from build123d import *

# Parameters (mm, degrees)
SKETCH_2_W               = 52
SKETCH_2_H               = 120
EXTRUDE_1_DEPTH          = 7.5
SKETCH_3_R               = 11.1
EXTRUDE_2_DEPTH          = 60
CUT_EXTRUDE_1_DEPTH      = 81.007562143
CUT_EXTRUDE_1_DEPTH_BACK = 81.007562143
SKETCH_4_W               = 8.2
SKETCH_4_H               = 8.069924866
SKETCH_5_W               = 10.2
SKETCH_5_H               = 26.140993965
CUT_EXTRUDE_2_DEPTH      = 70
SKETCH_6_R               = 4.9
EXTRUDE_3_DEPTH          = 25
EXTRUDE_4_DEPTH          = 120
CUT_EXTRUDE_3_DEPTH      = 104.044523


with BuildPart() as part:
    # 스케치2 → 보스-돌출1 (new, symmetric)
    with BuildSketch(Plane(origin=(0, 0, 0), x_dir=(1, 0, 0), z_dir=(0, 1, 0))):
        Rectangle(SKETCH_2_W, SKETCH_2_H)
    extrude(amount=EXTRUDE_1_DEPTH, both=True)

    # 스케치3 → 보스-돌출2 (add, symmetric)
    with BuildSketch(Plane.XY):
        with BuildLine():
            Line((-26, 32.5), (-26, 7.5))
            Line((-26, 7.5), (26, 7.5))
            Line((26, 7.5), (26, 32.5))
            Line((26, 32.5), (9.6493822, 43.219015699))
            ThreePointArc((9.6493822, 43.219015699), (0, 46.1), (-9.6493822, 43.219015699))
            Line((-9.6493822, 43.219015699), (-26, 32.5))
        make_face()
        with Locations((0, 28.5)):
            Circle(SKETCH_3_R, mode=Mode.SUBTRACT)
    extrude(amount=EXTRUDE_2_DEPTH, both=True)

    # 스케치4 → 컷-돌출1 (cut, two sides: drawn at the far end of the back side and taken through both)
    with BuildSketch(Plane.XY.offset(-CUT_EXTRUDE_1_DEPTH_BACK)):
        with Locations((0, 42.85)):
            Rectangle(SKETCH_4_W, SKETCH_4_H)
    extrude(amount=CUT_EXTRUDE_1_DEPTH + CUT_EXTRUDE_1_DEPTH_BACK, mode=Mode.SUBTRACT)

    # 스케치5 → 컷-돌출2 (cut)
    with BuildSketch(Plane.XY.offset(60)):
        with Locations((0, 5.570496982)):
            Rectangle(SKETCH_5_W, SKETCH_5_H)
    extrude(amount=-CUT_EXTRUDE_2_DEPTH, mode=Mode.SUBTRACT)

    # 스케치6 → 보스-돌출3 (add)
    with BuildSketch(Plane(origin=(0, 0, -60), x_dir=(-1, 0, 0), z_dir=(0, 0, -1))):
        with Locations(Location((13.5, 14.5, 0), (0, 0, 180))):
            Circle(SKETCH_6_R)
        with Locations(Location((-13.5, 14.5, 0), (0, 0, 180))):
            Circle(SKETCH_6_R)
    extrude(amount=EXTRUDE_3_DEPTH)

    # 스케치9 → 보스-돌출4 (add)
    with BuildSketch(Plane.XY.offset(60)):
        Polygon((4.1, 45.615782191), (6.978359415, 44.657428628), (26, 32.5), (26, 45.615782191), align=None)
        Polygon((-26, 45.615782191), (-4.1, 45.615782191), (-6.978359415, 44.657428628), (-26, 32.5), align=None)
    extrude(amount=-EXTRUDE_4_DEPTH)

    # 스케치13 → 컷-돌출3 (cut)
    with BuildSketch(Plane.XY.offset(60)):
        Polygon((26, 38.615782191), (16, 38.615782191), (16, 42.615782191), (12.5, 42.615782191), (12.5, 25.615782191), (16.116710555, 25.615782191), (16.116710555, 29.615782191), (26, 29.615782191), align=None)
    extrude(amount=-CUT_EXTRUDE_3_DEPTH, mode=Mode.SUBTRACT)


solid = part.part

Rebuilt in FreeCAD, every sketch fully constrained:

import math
import FreeCAD as App
import Part
import Sketcher

V = App.Vector
Q = App.Units.Quantity

doc = App.newDocument("Part")
params = doc.addObject("Spreadsheet::Sheet", "Params")
for row, (alias, value) in enumerate([
    ("sketch1_width", "52 mm"),
    ("sketch1_height", "120 mm"),
    ("pad1_length", "15 mm"),
    ("sketch2_diameter", "22.2 mm"),
    ("sketch2_radius", "17.6 mm"),
    ("sketch2_width", "52 mm"),
    ("sketch2_height", "25 mm"),
    ("pad2_length", "120 mm"),
    ("sketch3_width", "8.2 mm"),
    ("sketch4_width", "10.2 mm"),
    ("pocket2_length", "70 mm"),
    ("sketch5_diameter", "9.8 mm"),
    ("pad3_length", "25 mm"),
    ("sketch6_width", "21.9 mm"),
    ("pad4_length", "120 mm"),
    ("sketch7_width", "10 mm"),
    ("sketch7_height", "4 mm"),
    ("sketch7_height2", "17 mm"),
    ("sketch7_width2", "3.5 mm"),
    ("pocket3_length", "104.044523 mm"),
], start=1):
    params.set(f"A{row}", alias)
    params.set(f"B{row}", "=" + value)
    params.setAlias(f"B{row}", alias)

body = doc.addObject("PartDesign::Body", "Body")

sketch1 = body.newObject("Sketcher::SketchObject", "Sketch")
sketch1.AttachmentSupport = (doc.getObject("XZ_Plane"), [""])
sketch1.MapMode = "FlatFace"
sketch1.addGeometry(Part.LineSegment(V(-26, -60, 0), V(-26, 60, 0)), False)
sketch1.addGeometry(Part.LineSegment(V(-26, 60, 0), V(26, 60, 0)), False)
sketch1.addGeometry(Part.LineSegment(V(26, 60, 0), V(26, -60, 0)), False)
sketch1.addGeometry(Part.LineSegment(V(26, -60, 0), V(-26, -60, 0)), False)
sketch1.addConstraint(Sketcher.Constraint("Coincident", 0, 2, 1, 1))
sketch1.addConstraint(Sketcher.Constraint("Coincident", 1, 2, 2, 1))
sketch1.addConstraint(Sketcher.Constraint("Coincident", 2, 2, 3, 1))
sketch1.addConstraint(Sketcher.Constraint("Coincident", 3, 2, 0, 1))
sketch1.addConstraint(Sketcher.Constraint("Vertical", 0))
sketch1.addConstraint(Sketcher.Constraint("Horizontal", 1))
sketch1.addConstraint(Sketcher.Constraint("Vertical", 2))
sketch1.addConstraint(Sketcher.Constraint("Horizontal", 3))
sketch1.addConstraint(Sketcher.Constraint("Symmetric", 0, 2, 2, 2, -1, 1))
sketch1.addConstraint(Sketcher.Constraint("DistanceX", 1, 1, 1, 2, Q("52 mm")))
sketch1.addConstraint(Sketcher.Constraint("DistanceY", 0, 1, 0, 2, Q("120 mm")))
sketch1.setExpression("Constraints[9]", "Params.sketch1_width")
sketch1.setExpression("Constraints[10]", "Params.sketch1_height")
pad1 = body.newObject("PartDesign::Pad", "Pad")
pad1.Profile = sketch1
pad1.setExpression("Length", "Params.pad1_length")
pad1.Midplane = True

sketch2 = body.newObject("Sketcher::SketchObject", "Sketch001")
sketch2.AttachmentSupport = (doc.getObject("XY_Plane"), [""])
sketch2.MapMode = "FlatFace"
sketch2.addGeometry(Part.LineSegment(V(-26, 32.5, 0), V(-26, 7.5, 0)), False)
sketch2.addGeometry(Part.LineSegment(V(-26, 7.5, 0), V(26, 7.5, 0)), False)
sketch2.addGeometry(Part.LineSegment(V(26, 7.5, 0), V(26, 32.5, 0)), False)
sketch2.addGeometry(Part.LineSegment(V(26, 32.5, 0), V(9.649382, 43.219016, 0)), False)
sketch2.addGeometry(Part.ArcOfCircle(Part.Circle(V(0, 28.5, 0), V(0, 0, 1), 17.6), math.radians(56.752252), math.radians(123.247748)), False)
sketch2.addGeometry(Part.LineSegment(V(-9.649382, 43.219016, 0), V(-26, 32.5, 0)), False)
sketch2.addGeometry(Part.Circle(V(0, 28.5, 0), V(0, 0, 1), 11.1), False)
sketch2.addConstraint(Sketcher.Constraint("Coincident", 0, 2, 1, 1))
sketch2.addConstraint(Sketcher.Constraint("Coincident", 1, 2, 2, 1))
sketch2.addConstraint(Sketcher.Constraint("Coincident", 2, 2, 3, 1))
sketch2.addConstraint(Sketcher.Constraint("Tangent", 3, 2, 4, 1))
sketch2.addConstraint(Sketcher.Constraint("Tangent", 4, 2, 5, 1))
sketch2.addConstraint(Sketcher.Constraint("Coincident", 5, 2, 0, 1))
sketch2.addConstraint(Sketcher.Constraint("Vertical", 0))
sketch2.addConstraint(Sketcher.Constraint("Horizontal", 1))
sketch2.addConstraint(Sketcher.Constraint("Vertical", 2))
sketch2.addConstraint(Sketcher.Constraint("Coincident", 6, 3, 4, 3))
sketch2.addConstraint(Sketcher.Constraint("Symmetric", 3, 2, 4, 2, -2))
sketch2.addConstraint(Sketcher.Constraint("Horizontal", 2, 2, 5, 2))
sketch2.addConstraint(Sketcher.Constraint("Diameter", 6, Q("22.2 mm")))
sketch2.addConstraint(Sketcher.Constraint("Radius", 4, Q("17.6 mm")))
sketch2.addConstraint(Sketcher.Constraint("DistanceX", 1, 1, 1, 2, Q("52 mm")))
sketch2.addConstraint(Sketcher.Constraint("DistanceY", 0, 2, 0, 1, Q("25 mm")))
sketch2.addConstraint(Sketcher.Constraint("DistanceY", 0, 2, 6, 3, Q("21 mm")))
sketch2.addConstraint(Sketcher.Constraint("DistanceY", -1, 1, 4, 3, Q("28.5 mm")))
sketch2.setExpression("Constraints[12]", "Params.sketch2_diameter")
sketch2.setExpression("Constraints[13]", "Params.sketch2_radius")
sketch2.setExpression("Constraints[14]", "Params.sketch2_width")
sketch2.setExpression("Constraints[15]", "Params.sketch2_height")
pad2 = body.newObject("PartDesign::Pad", "Pad001")
pad2.Profile = sketch2
pad2.setExpression("Length", "Params.pad2_length")
pad2.Midplane = True

sketch3 = body.newObject("Sketcher::SketchObject", "Sketch002")
sketch3.AttachmentSupport = (doc.getObject("XY_Plane"), [""])
sketch3.MapMode = "FlatFace"
sketch3.addGeometry(Part.LineSegment(V(-4.1, 46.884962, 0), V(-4.1, 38.815038, 0)), False)
sketch3.addGeometry(Part.LineSegment(V(-4.1, 38.815038, 0), V(4.1, 38.815038, 0)), False)
sketch3.addGeometry(Part.LineSegment(V(4.1, 38.815038, 0), V(4.1, 46.884962, 0)), False)
sketch3.addGeometry(Part.LineSegment(V(4.1, 46.884962, 0), V(-4.1, 46.884962, 0)), False)
sketch3.addConstraint(Sketcher.Constraint("Coincident", 0, 2, 1, 1))
sketch3.addConstraint(Sketcher.Constraint("Coincident", 1, 2, 2, 1))
sketch3.addConstraint(Sketcher.Constraint("Coincident", 2, 2, 3, 1))
sketch3.addConstraint(Sketcher.Constraint("Coincident", 3, 2, 0, 1))
sketch3.addConstraint(Sketcher.Constraint("Vertical", 0))
sketch3.addConstraint(Sketcher.Constraint("Horizontal", 1))
sketch3.addConstraint(Sketcher.Constraint("Vertical", 2))
sketch3.addConstraint(Sketcher.Constraint("Horizontal", 3))
sketch3.addConstraint(Sketcher.Constraint("DistanceX", 1, 1, 1, 2, Q("8.2 mm")))
sketch3.addConstraint(Sketcher.Constraint("DistanceX", 0, 2, -1, 1, Q("4.1 mm")))
sketch3.addConstraint(Sketcher.Constraint("DistanceY", 0, 2, 0, 1, Q("8.069925 mm")))
sketch3.addConstraint(Sketcher.Constraint("DistanceY", -1, 1, 0, 2, Q("38.815038 mm")))
sketch3.setExpression("Constraints[8]", "Params.sketch3_width")
pocket1 = body.newObject("PartDesign::Pocket", "Pocket")
pocket1.Profile = sketch3
pocket1.Type = "ThroughAll"
pocket1.Midplane = True

sketch4 = body.newObject("Sketcher::SketchObject", "Sketch003")
sketch4.AttachmentSupport = (doc.getObject("XY_Plane"), [""])
sketch4.MapMode = "FlatFace"
sketch4.AttachmentOffset = App.Placement(V(0, 0, 60), App.Rotation())
sketch4.addGeometry(Part.LineSegment(V(-5.1, 18.640994, 0), V(-5.1, -7.5, 0)), False)
sketch4.addGeometry(Part.LineSegment(V(-5.1, -7.5, 0), V(5.1, -7.5, 0)), False)
sketch4.addGeometry(Part.LineSegment(V(5.1, -7.5, 0), V(5.1, 18.640994, 0)), False)
sketch4.addGeometry(Part.LineSegment(V(5.1, 18.640994, 0), V(-5.1, 18.640994, 0)), False)
sketch4.addConstraint(Sketcher.Constraint("Coincident", 0, 2, 1, 1))
sketch4.addConstraint(Sketcher.Constraint("Coincident", 1, 2, 2, 1))
sketch4.addConstraint(Sketcher.Constraint("Coincident", 2, 2, 3, 1))
sketch4.addConstraint(Sketcher.Constraint("Coincident", 3, 2, 0, 1))
sketch4.addConstraint(Sketcher.Constraint("Vertical", 0))
sketch4.addConstraint(Sketcher.Constraint("Horizontal", 1))
sketch4.addConstraint(Sketcher.Constraint("Vertical", 2))
sketch4.addConstraint(Sketcher.Constraint("Horizontal", 3))
sketch4.addConstraint(Sketcher.Constraint("DistanceX", 1, 1, 1, 2, Q("10.2 mm")))
sketch4.addConstraint(Sketcher.Constraint("DistanceX", 0, 2, -1, 1, Q("5.1 mm")))
sketch4.addConstraint(Sketcher.Constraint("DistanceY", 0, 2, -1, 1, Q("7.5 mm")))
sketch4.addConstraint(Sketcher.Constraint("DistanceY", 0, 2, 0, 1, Q("26.140994 mm")))
sketch4.setExpression("Constraints[8]", "Params.sketch4_width")
pocket2 = body.newObject("PartDesign::Pocket", "Pocket001")
pocket2.Profile = sketch4
pocket2.setExpression("Length", "Params.pocket2_length")

sketch5 = body.newObject("Sketcher::SketchObject", "Sketch004")
sketch5.AttachmentSupport = (doc.getObject("XY_Plane"), [""])
sketch5.MapMode = "FlatFace"
sketch5.AttachmentOffset = App.Placement(V(0, 0, -60), App.Rotation())
sketch5.addGeometry(Part.Circle(V(-13.5, 14.5, 0), V(0, 0, 1), 4.9), False)
sketch5.addGeometry(Part.Circle(V(13.5, 14.5, 0), V(0, 0, 1), 4.9), False)
sketch5.addConstraint(Sketcher.Constraint("Equal", 0, 1))
sketch5.addConstraint(Sketcher.Constraint("Symmetric", 0, 3, 1, 3, -2))
sketch5.addConstraint(Sketcher.Constraint("Diameter", 0, Q("9.8 mm")))
sketch5.addConstraint(Sketcher.Constraint("DistanceX", 0, 3, 1, 3, Q("27 mm")))
sketch5.addConstraint(Sketcher.Constraint("DistanceY", -1, 1, 0, 3, Q("14.5 mm")))
sketch5.setExpression("Constraints[2]", "Params.sketch5_diameter")
pad3 = body.newObject("PartDesign::Pad", "Pad002")
pad3.Profile = sketch5
pad3.setExpression("Length", "Params.pad3_length")
pad3.Reversed = True

sketch6 = body.newObject("Sketcher::SketchObject", "Sketch005")
sketch6.AttachmentSupport = (doc.getObject("XY_Plane"), [""])
sketch6.MapMode = "FlatFace"
sketch6.AttachmentOffset = App.Placement(V(0, 0, 60), App.Rotation())
sketch6.addGeometry(Part.LineSegment(V(4.1, 45.615782, 0), V(6.978359, 44.657429, 0)), False)
sketch6.addGeometry(Part.LineSegment(V(6.978359, 44.657429, 0), V(26, 32.5, 0)), False)
sketch6.addGeometry(Part.LineSegment(V(26, 32.5, 0), V(26, 45.615782, 0)), False)
sketch6.addGeometry(Part.LineSegment(V(26, 45.615782, 0), V(4.1, 45.615782, 0)), False)
sketch6.addGeometry(Part.LineSegment(V(-4.1, 45.615782, 0), V(-26, 45.615782, 0)), False)
sketch6.addGeometry(Part.LineSegment(V(-26, 45.615782, 0), V(-26, 32.5, 0)), False)
sketch6.addGeometry(Part.LineSegment(V(-26, 32.5, 0), V(-6.978359, 44.657429, 0)), False)
sketch6.addGeometry(Part.LineSegment(V(-6.978359, 44.657429, 0), V(-4.1, 45.615782, 0)), False)
sketch6.addConstraint(Sketcher.Constraint("Coincident", 0, 2, 1, 1))
sketch6.addConstraint(Sketcher.Constraint("Coincident", 1, 2, 2, 1))
sketch6.addConstraint(Sketcher.Constraint("Coincident", 2, 2, 3, 1))
sketch6.addConstraint(Sketcher.Constraint("Coincident", 3, 2, 0, 1))
sketch6.addConstraint(Sketcher.Constraint("Coincident", 4, 2, 5, 1))
sketch6.addConstraint(Sketcher.Constraint("Coincident", 5, 2, 6, 1))
sketch6.addConstraint(Sketcher.Constraint("Coincident", 6, 2, 7, 1))
sketch6.addConstraint(Sketcher.Constraint("Coincident", 7, 2, 4, 1))
sketch6.addConstraint(Sketcher.Constraint("Vertical", 2))
sketch6.addConstraint(Sketcher.Constraint("Horizontal", 3))
sketch6.addConstraint(Sketcher.Constraint("Horizontal", 4))
sketch6.addConstraint(Sketcher.Constraint("Vertical", 5))
sketch6.addConstraint(Sketcher.Constraint("Symmetric", 2, 2, 4, 2, -2))
sketch6.addConstraint(Sketcher.Constraint("Symmetric", 0, 2, 6, 2, -2))
sketch6.addConstraint(Sketcher.Constraint("Horizontal", 1, 2, 5, 2))
sketch6.addConstraint(Sketcher.Constraint("Equal", 3, 4))
sketch6.addConstraint(Sketcher.Constraint("DistanceX", 3, 2, 3, 1, Q("21.9 mm")))
sketch6.addConstraint(Sketcher.Constraint("DistanceX", -1, 1, 1, 2, Q("26 mm")))
sketch6.addConstraint(Sketcher.Constraint("DistanceY", -1, 1, 1, 2, Q("32.5 mm")))
sketch6.addConstraint(Sketcher.Constraint("Distance", 0, Q("3.03371 mm")))
sketch6.addConstraint(Sketcher.Constraint("DistanceY", 2, 1, 2, 2, Q("13.115782 mm")))
sketch6.addConstraint(Sketcher.Constraint("DistanceX", -1, 1, 0, 2, Q("6.978359 mm")))
sketch6.setExpression("Constraints[16]", "Params.sketch6_width")
pad4 = body.newObject("PartDesign::Pad", "Pad003")
pad4.Profile = sketch6
pad4.setExpression("Length", "Params.pad4_length")
pad4.Reversed = True

sketch7 = body.newObject("Sketcher::SketchObject", "Sketch006")
sketch7.AttachmentSupport = (doc.getObject("XY_Plane"), [""])
sketch7.MapMode = "FlatFace"
sketch7.AttachmentOffset = App.Placement(V(0, 0, 60), App.Rotation())
sketch7.addGeometry(Part.LineSegment(V(26, 38.615782, 0), V(16, 38.615782, 0)), False)
sketch7.addGeometry(Part.LineSegment(V(16, 38.615782, 0), V(16, 42.615782, 0)), False)
sketch7.addGeometry(Part.LineSegment(V(16, 42.615782, 0), V(12.5, 42.615782, 0)), False)
sketch7.addGeometry(Part.LineSegment(V(12.5, 42.615782, 0), V(12.5, 25.615782, 0)), False)
sketch7.addGeometry(Part.LineSegment(V(12.5, 25.615782, 0), V(16.116711, 25.615782, 0)), False)
sketch7.addGeometry(Part.LineSegment(V(16.116711, 25.615782, 0), V(16.116711, 29.615782, 0)), False)
sketch7.addGeometry(Part.LineSegment(V(16.116711, 29.615782, 0), V(26, 29.615782, 0)), False)
sketch7.addGeometry(Part.LineSegment(V(26, 29.615782, 0), V(26, 38.615782, 0)), False)
sketch7.addConstraint(Sketcher.Constraint("Coincident", 0, 2, 1, 1))
sketch7.addConstraint(Sketcher.Constraint("Coincident", 1, 2, 2, 1))
sketch7.addConstraint(Sketcher.Constraint("Coincident", 2, 2, 3, 1))
sketch7.addConstraint(Sketcher.Constraint("Coincident", 3, 2, 4, 1))
sketch7.addConstraint(Sketcher.Constraint("Coincident", 4, 2, 5, 1))
sketch7.addConstraint(Sketcher.Constraint("Coincident", 5, 2, 6, 1))
sketch7.addConstraint(Sketcher.Constraint("Coincident", 6, 2, 7, 1))
sketch7.addConstraint(Sketcher.Constraint("Coincident", 7, 2, 0, 1))
sketch7.addConstraint(Sketcher.Constraint("Horizontal", 0))
sketch7.addConstraint(Sketcher.Constraint("Vertical", 1))
sketch7.addConstraint(Sketcher.Constraint("Horizontal", 2))
sketch7.addConstraint(Sketcher.Constraint("Vertical", 3))
sketch7.addConstraint(Sketcher.Constraint("Horizontal", 4))
sketch7.addConstraint(Sketcher.Constraint("Vertical", 5))
sketch7.addConstraint(Sketcher.Constraint("Horizontal", 6))
sketch7.addConstraint(Sketcher.Constraint("Vertical", 7))
sketch7.addConstraint(Sketcher.Constraint("Equal", 1, 5))
sketch7.addConstraint(Sketcher.Constraint("DistanceX", 0, 2, 0, 1, Q("10 mm")))
sketch7.addConstraint(Sketcher.Constraint("DistanceY", 1, 1, 1, 2, Q("4 mm")))
sketch7.addConstraint(Sketcher.Constraint("DistanceY", 3, 2, 3, 1, Q("17 mm")))
sketch7.addConstraint(Sketcher.Constraint("DistanceX", 2, 2, 2, 1, Q("3.5 mm")))
sketch7.addConstraint(Sketcher.Constraint("DistanceX", -1, 1, 0, 2, Q("16 mm")))
sketch7.addConstraint(Sketcher.Constraint("DistanceX", 4, 1, 4, 2, Q("3.616711 mm")))
sketch7.addConstraint(Sketcher.Constraint("DistanceY", -1, 1, 0, 2, Q("38.615782 mm")))
sketch7.setExpression("Constraints[17]", "Params.sketch7_width")
sketch7.setExpression("Constraints[18]", "Params.sketch7_height")
sketch7.setExpression("Constraints[19]", "Params.sketch7_height2")
sketch7.setExpression("Constraints[20]", "Params.sketch7_width2")
pocket3 = body.newObject("PartDesign::Pocket", "Pocket002")
pocket3.Profile = sketch7
pocket3.setExpression("Length", "Params.pocket3_length")

doc.recompute()
